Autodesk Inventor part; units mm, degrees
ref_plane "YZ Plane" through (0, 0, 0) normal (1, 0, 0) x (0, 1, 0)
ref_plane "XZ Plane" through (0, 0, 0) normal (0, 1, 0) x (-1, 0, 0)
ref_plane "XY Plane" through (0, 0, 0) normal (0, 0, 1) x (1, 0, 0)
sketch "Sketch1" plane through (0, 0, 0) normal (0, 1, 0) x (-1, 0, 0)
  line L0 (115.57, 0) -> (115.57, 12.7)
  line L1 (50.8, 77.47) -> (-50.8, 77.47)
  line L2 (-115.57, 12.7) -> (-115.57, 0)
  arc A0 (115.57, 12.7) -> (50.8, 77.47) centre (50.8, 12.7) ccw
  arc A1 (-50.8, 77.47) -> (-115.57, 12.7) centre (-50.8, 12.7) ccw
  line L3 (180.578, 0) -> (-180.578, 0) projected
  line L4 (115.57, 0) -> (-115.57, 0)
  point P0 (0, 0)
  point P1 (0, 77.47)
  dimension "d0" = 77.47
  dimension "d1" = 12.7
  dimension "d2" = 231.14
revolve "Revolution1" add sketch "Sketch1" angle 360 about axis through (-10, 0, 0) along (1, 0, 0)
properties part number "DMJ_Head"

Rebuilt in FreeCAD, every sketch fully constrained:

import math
import FreeCAD as App
import Part
import Sketcher
from FreeCAD import Vector
Q = App.Units.Quantity

doc = App.newDocument("Part")
body = doc.addObject("PartDesign::Body", "Body")

sketch1 = doc.addObject("Sketcher::SketchObject", "Sketch")
body.addObject(sketch1)
sketch1.AttachmentSupport = (doc.XZ_Plane, [""])
sketch1.MapMode = "FlatFace"
sketch1.addGeometry([
    Part.LineSegment(Vector(116, 0, 0), Vector(-116, 0, 0)),
    Part.LineSegment(Vector(-116, 0, 0), Vector(-116, 13, 0)),
    Part.ArcOfCircle(Part.Circle(Vector(-51, 13, 0), Vector(0, 0, 1), 65), math.radians(90), math.radians(180)),
    Part.LineSegment(Vector(-51, 77, 0), Vector(51, 77, 0)),
    Part.ArcOfCircle(Part.Circle(Vector(51, 13, 0), Vector(0, 0, 1), 65), math.radians(0), math.radians(90)),
    Part.LineSegment(Vector(116, 13, 0), Vector(116, 0, 0)),
], False)
sketch1.addConstraint([
    Sketcher.Constraint("Coincident", 0, 2, 1, 1),
    Sketcher.Constraint("Tangent", 1, 2, 2, 2),
    Sketcher.Constraint("Tangent", 2, 1, 3, 1),
    Sketcher.Constraint("Tangent", 3, 2, 4, 2),
    Sketcher.Constraint("Tangent", 4, 1, 5, 1),
    Sketcher.Constraint("Coincident", 5, 2, 0, 1),
    Sketcher.Constraint("Horizontal", 0),
    Sketcher.Constraint("Vertical", 1),
    Sketcher.Constraint("Horizontal", 3),
    Sketcher.Constraint("Vertical", 5),
    Sketcher.Constraint("Equal", 2, 4),
    Sketcher.Constraint("Symmetric", 0, 2, 5, 2, -1, 1),
    Sketcher.Constraint("DistanceX", 0, 2, 0, 1, Q("9.1 in")),
    Sketcher.Constraint("DistanceY", 1, 1, 1, 2, Q("0.5 in")),
    Sketcher.Constraint("DistanceX", 3, 1, 3, 2, Q("4 in")),
])
revolution = doc.addObject("PartDesign::Revolution", "Revolution")
body.addObject(revolution)
revolution.Profile = sketch1
revolution.ReferenceAxis = (sketch1, ["H_Axis"])
revolution.Angle = 360

doc.recompute()
